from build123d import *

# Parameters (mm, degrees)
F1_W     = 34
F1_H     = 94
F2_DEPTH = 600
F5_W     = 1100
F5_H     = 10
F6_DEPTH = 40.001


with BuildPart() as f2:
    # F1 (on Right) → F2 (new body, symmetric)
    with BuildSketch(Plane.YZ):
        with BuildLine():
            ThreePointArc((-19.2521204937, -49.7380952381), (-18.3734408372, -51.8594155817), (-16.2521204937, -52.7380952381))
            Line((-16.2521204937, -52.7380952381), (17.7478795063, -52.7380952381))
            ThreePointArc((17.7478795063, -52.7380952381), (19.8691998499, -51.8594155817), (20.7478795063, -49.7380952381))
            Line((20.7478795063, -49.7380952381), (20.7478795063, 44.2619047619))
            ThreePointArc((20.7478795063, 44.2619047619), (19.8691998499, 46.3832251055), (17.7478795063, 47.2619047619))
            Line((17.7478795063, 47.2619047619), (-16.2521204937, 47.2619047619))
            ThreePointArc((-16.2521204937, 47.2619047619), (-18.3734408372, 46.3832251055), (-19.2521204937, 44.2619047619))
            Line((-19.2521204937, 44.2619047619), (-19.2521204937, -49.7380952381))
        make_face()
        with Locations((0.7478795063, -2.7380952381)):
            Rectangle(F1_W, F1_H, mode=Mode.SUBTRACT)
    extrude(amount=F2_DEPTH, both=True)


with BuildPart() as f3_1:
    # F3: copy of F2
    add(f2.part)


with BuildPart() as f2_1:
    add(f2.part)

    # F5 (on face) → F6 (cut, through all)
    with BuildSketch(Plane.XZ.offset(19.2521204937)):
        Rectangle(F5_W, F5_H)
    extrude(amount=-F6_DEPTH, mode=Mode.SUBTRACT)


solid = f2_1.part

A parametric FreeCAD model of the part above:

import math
import FreeCAD as App
import Part
import Sketcher

V = App.Vector
Q = App.Units.Quantity

doc = App.newDocument("Part")
params = doc.addObject("Spreadsheet::Sheet", "Params")
for row, (alias, value) in enumerate([
    ("sketch1_radius", "3 mm"),
    ("sketch1_width", "34 mm"),
    ("sketch1_height", "94 mm"),
    ("pad1_length", "1200 mm"),
    ("sketch2_width", "1100 mm"),
    ("sketch2_height", "10 mm"),
], start=1):
    params.set(f"A{row}", alias)
    params.set(f"B{row}", "=" + value)
    params.setAlias(f"B{row}", alias)

body = doc.addObject("PartDesign::Body", "Body")

sketch1 = body.newObject("Sketcher::SketchObject", "Sketch")
sketch1.AttachmentSupport = (doc.getObject("YZ_Plane"), [""])
sketch1.MapMode = "FlatFace"
sketch1.addGeometry([
    Part.ArcOfCircle(Part.Circle(V(-16.3, -49.7, 0), V(0, 0, 1), 3), math.radians(180), math.radians(270)),
    Part.LineSegment(V(-16.3, -52.7, 0), V(17.7, -52.7, 0)),
    Part.ArcOfCircle(Part.Circle(V(17.7, -49.7, 0), V(0, 0, 1), 3), math.radians(-90), math.radians(0)),
    Part.LineSegment(V(20.7, -49.7, 0), V(20.7, 44.3, 0)),
    Part.ArcOfCircle(Part.Circle(V(17.7, 44.3, 0), V(0, 0, 1), 3), math.radians(0), math.radians(90)),
    Part.LineSegment(V(17.7, 47.3, 0), V(-16.3, 47.3, 0)),
    Part.ArcOfCircle(Part.Circle(V(-16.3, 44.3, 0), V(0, 0, 1), 3), math.radians(90), math.radians(180)),
    Part.LineSegment(V(-19.3, 44.3, 0), V(-19.3, -49.7, 0)),
    Part.LineSegment(V(17.7, -49.7, 0), V(-16.3, -49.7, 0)),
    Part.LineSegment(V(-16.3, -49.7, 0), V(-16.3, 44.3, 0)),
    Part.LineSegment(V(-16.3, 44.3, 0), V(17.7, 44.3, 0)),
    Part.LineSegment(V(17.7, 44.3, 0), V(17.7, -49.7, 0)),
], False)
sketch1.addConstraint([
    Sketcher.Constraint("Tangent", 0, 2, 1, 1),
    Sketcher.Constraint("Tangent", 1, 2, 2, 1),
    Sketcher.Constraint("Tangent", 2, 2, 3, 1),
    Sketcher.Constraint("Tangent", 3, 2, 4, 1),
    Sketcher.Constraint("Tangent", 4, 2, 5, 1),
    Sketcher.Constraint("Tangent", 5, 2, 6, 1),
    Sketcher.Constraint("Tangent", 6, 2, 7, 1),
    Sketcher.Constraint("Tangent", 7, 2, 0, 1),
    Sketcher.Constraint("Coincident", 8, 2, 9, 1),
    Sketcher.Constraint("Coincident", 9, 2, 10, 1),
    Sketcher.Constraint("Coincident", 10, 2, 11, 1),
    Sketcher.Constraint("Coincident", 11, 2, 8, 1),
    Sketcher.Constraint("Horizontal", 1),
    Sketcher.Constraint("Vertical", 3),
    Sketcher.Constraint("Horizontal", 5),
    Sketcher.Constraint("Vertical", 7),
    Sketcher.Constraint("Horizontal", 8),
    Sketcher.Constraint("Vertical", 9),
    Sketcher.Constraint("Horizontal", 10),
    Sketcher.Constraint("Vertical", 11),
    Sketcher.Constraint("Coincident", 8, 2, 0, 3),
    Sketcher.Constraint("Coincident", 9, 2, 6, 3),
    Sketcher.Constraint("Coincident", 10, 2, 4, 3),
    Sketcher.Constraint("Equal", 0, 2),
    Sketcher.Constraint("Radius", 0, Q("3 mm")),
    Sketcher.Constraint("DistanceX", 1, 1, 1, 2, Q("34 mm")),
    Sketcher.Constraint("DistanceY", 3, 1, 3, 2, Q("94 mm")),
    Sketcher.Constraint("DistanceX", 0, 3, -1, 1, Q("16.25212 mm")),
    Sketcher.Constraint("DistanceY", 0, 3, -1, 1, Q("49.738095 mm")),
])
sketch1.setExpression("Constraints[24]", "Params.sketch1_radius")
sketch1.setExpression("Constraints[25]", "Params.sketch1_width")
sketch1.setExpression("Constraints[26]", "Params.sketch1_height")
pad1 = body.newObject("PartDesign::Pad", "Pad")
pad1.Profile = sketch1
pad1.setExpression("Length", "Params.pad1_length")
pad1.Midplane = True
body2 = doc.addObject("PartDesign::Body", "Body001")
doc.recompute()

body2.BaseFeature = body
doc.recompute()

sketch2 = body.newObject("Sketcher::SketchObject", "Sketch001")
sketch2.AttachmentSupport = (doc.getObject("XZ_Plane"), [""])
sketch2.MapMode = "FlatFace"
sketch2.AttachmentOffset = App.Placement(V(0, 0, 19.25212), App.Rotation())
sketch2.addGeometry([
    Part.LineSegment(V(-550, 5, 0), V(-550, -5, 0)),
    Part.LineSegment(V(-550, -5, 0), V(550, -5, 0)),
    Part.LineSegment(V(550, -5, 0), V(550, 5, 0)),
    Part.LineSegment(V(550, 5, 0), V(-550, 5, 0)),
], False)
sketch2.addConstraint([
    Sketcher.Constraint("Coincident", 0, 2, 1, 1),
    Sketcher.Constraint("Coincident", 1, 2, 2, 1),
    Sketcher.Constraint("Coincident", 2, 2, 3, 1),
    Sketcher.Constraint("Coincident", 3, 2, 0, 1),
    Sketcher.Constraint("Vertical", 0),
    Sketcher.Constraint("Horizontal", 1),
    Sketcher.Constraint("Vertical", 2),
    Sketcher.Constraint("Horizontal", 3),
    Sketcher.Constraint("Symmetric", 0, 2, 2, 2, -1, 1),
    Sketcher.Constraint("DistanceX", 1, 1, 1, 2, Q("1100 mm")),
    Sketcher.Constraint("DistanceY", 0, 2, 0, 1, Q("10 mm")),
])
sketch2.setExpression("Constraints[9]", "Params.sketch2_width")
sketch2.setExpression("Constraints[10]", "Params.sketch2_height")
pocket1 = body.newObject("PartDesign::Pocket", "Pocket")
pocket1.Profile = sketch2
pocket1.Type = "ThroughAll"
body.Visibility = False

doc.recompute()
